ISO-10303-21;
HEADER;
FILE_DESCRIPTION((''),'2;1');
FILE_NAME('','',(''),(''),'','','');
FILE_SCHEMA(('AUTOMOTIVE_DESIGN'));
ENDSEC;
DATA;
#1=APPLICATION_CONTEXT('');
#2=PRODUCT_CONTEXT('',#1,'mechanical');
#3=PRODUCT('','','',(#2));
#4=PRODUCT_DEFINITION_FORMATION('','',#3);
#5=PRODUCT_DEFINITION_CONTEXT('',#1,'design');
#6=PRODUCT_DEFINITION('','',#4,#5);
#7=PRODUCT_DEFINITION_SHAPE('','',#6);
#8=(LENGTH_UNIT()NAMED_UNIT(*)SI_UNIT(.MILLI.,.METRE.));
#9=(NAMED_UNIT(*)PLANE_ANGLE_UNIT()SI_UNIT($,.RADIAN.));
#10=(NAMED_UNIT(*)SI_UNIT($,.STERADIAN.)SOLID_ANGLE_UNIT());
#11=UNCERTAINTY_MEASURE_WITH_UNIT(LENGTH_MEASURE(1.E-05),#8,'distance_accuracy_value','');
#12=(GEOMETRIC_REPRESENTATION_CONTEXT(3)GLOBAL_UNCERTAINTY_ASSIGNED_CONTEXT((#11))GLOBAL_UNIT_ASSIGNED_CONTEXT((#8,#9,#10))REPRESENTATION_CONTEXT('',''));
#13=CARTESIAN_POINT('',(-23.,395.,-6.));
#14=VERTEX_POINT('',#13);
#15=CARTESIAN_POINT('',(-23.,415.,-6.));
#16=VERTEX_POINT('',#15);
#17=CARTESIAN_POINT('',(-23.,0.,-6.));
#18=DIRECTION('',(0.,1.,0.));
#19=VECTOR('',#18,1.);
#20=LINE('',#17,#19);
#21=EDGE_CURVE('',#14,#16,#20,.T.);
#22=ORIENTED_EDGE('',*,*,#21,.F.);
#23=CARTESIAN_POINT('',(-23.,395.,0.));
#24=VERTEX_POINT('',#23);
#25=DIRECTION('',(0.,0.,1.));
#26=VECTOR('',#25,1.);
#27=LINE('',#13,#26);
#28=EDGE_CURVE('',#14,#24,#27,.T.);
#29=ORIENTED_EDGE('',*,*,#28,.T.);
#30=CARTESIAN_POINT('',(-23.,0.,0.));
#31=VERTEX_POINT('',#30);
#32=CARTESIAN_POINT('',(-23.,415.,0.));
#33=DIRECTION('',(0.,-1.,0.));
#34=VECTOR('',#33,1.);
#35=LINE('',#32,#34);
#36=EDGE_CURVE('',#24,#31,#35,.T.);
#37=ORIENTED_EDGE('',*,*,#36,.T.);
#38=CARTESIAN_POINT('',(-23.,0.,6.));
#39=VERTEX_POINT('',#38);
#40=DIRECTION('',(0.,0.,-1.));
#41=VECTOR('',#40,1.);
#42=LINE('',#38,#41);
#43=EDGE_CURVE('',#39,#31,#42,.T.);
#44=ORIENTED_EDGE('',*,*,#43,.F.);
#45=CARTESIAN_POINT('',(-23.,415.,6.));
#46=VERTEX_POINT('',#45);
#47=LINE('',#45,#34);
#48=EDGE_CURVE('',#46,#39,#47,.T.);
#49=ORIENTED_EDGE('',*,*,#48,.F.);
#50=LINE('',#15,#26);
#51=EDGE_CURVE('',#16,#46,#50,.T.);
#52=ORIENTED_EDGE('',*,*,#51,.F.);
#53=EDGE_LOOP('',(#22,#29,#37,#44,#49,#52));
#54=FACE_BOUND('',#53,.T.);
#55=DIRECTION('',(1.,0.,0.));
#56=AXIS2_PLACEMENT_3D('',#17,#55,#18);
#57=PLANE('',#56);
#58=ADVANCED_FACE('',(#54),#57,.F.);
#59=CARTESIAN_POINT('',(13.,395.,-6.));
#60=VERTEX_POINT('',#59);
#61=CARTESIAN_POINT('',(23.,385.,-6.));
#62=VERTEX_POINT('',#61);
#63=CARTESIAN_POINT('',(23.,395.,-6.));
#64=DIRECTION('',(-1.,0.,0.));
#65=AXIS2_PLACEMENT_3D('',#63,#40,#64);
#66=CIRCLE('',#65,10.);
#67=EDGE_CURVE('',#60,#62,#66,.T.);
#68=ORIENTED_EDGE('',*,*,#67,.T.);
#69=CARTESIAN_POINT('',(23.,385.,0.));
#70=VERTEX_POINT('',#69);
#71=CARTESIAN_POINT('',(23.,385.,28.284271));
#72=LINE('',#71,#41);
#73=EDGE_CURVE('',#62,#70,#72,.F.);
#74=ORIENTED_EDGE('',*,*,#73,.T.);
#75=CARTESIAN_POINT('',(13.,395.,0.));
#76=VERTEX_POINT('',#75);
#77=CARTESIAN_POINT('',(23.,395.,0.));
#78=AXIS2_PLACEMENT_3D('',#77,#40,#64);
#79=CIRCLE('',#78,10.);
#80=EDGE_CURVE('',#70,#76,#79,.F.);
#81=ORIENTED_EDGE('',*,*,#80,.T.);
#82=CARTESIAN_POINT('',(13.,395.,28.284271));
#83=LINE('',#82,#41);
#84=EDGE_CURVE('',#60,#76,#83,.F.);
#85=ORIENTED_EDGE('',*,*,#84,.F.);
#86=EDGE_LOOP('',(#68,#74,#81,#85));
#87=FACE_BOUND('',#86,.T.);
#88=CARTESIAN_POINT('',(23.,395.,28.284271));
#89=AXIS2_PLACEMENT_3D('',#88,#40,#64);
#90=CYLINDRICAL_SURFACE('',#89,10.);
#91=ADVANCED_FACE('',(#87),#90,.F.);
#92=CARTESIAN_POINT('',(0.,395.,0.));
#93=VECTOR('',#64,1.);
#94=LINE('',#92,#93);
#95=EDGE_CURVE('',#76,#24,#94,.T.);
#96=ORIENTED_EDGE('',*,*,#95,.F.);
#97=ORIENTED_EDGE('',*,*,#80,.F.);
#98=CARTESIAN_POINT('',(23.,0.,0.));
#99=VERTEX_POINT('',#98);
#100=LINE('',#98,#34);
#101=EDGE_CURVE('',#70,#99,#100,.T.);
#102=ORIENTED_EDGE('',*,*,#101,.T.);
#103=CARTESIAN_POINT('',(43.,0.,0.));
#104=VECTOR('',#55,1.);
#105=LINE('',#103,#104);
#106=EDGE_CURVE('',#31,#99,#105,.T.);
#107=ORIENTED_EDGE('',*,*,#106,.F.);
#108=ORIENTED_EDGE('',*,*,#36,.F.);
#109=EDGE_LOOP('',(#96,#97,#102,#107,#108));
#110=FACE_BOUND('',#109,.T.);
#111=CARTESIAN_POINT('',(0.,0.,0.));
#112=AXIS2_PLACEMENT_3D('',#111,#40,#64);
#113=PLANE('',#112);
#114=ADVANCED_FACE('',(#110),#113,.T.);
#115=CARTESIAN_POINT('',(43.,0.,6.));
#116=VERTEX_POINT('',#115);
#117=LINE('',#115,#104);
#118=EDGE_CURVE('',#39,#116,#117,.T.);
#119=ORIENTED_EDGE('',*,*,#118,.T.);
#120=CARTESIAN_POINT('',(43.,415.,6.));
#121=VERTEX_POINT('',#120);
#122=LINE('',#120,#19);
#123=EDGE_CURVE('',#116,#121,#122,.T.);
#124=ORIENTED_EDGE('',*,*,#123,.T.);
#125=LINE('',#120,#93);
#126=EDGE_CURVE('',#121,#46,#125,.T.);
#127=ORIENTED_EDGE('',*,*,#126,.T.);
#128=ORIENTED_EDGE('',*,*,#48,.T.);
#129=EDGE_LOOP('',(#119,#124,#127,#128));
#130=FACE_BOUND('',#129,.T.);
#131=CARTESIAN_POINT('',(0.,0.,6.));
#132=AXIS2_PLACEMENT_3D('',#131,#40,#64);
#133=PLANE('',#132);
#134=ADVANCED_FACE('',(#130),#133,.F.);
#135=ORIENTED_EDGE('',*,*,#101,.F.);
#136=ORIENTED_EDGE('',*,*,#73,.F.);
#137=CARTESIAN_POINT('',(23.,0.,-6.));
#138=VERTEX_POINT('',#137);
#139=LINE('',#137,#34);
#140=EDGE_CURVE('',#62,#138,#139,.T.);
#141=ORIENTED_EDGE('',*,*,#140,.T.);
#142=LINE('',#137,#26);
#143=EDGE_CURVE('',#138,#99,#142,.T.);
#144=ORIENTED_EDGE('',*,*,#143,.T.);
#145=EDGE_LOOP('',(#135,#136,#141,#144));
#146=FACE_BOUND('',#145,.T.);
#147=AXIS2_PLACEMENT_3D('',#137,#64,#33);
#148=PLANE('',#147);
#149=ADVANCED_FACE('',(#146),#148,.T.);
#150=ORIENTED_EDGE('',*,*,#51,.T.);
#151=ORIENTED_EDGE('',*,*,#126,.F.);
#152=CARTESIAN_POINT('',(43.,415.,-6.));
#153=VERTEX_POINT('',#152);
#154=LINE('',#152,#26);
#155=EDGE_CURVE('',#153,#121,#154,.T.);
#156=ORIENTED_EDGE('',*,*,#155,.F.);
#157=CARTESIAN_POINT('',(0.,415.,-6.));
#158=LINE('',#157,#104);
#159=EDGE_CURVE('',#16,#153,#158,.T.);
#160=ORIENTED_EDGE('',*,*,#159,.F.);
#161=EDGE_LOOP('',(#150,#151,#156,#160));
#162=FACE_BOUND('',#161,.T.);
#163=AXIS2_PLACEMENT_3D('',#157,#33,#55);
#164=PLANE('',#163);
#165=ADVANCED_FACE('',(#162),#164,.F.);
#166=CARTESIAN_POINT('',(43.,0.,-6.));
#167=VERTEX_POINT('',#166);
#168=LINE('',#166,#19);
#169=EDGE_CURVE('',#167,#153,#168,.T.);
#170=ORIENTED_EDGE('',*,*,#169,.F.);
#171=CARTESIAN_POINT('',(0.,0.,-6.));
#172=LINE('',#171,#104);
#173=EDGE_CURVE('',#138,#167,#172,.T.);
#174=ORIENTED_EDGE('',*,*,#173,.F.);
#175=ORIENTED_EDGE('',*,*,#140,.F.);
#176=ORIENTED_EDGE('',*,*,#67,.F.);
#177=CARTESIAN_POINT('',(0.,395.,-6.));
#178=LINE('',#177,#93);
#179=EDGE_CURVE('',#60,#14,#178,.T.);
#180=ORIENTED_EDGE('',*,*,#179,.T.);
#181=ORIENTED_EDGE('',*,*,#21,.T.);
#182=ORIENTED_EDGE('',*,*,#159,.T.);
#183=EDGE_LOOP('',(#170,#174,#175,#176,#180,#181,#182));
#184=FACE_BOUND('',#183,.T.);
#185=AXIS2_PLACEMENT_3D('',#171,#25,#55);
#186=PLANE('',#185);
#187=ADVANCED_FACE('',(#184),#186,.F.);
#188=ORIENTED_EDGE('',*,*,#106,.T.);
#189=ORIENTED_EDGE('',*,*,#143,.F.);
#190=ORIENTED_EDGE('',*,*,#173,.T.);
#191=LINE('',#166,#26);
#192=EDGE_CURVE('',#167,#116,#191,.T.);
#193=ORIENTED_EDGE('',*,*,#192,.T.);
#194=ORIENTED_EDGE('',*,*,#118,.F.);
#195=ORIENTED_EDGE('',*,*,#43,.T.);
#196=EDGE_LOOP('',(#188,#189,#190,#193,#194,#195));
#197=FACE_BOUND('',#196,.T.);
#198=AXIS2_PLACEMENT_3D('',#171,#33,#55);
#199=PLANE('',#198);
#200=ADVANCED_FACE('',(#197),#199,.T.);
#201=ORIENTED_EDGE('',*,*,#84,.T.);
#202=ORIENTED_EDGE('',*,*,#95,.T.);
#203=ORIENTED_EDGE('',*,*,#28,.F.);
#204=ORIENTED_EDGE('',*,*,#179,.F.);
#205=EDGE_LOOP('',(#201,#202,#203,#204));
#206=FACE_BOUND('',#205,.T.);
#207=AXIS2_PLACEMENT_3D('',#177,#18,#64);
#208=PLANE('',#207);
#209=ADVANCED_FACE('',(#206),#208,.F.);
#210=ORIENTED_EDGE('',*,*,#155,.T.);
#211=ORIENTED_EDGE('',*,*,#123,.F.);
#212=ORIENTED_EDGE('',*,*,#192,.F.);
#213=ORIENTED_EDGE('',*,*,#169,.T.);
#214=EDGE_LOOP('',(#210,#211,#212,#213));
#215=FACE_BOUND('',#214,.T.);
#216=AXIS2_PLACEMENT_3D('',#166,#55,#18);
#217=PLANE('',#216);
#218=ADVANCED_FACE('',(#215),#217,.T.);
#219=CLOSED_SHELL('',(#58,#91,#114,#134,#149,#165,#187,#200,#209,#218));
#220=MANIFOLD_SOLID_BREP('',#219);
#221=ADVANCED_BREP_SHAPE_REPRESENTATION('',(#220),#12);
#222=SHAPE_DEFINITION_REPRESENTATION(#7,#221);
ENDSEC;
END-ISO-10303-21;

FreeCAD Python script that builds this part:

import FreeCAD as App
import Part
import Sketcher

V = App.Vector


def add_polygon(sketch, points):
    """Adds a closed chain of lines whose ends are joined by coincident constraints."""
    first, n = sketch.GeometryCount, len(points)
    for a, b in zip(points, points[1:] + points[:1]):
        sketch.addGeometry(Part.LineSegment(App.Vector(*a, 0), App.Vector(*b, 0)), False)
    for i in range(n):
        sketch.addConstraint(Sketcher.Constraint("Coincident", first + i, 2, first + (i + 1) % n, 1))

doc = App.newDocument("Part")
body = doc.addObject("PartDesign::Body", "Body")

# Sketch on XY plane
sketch1 = body.newObject("Sketcher::SketchObject", "Sketch")
sketch1.AttachmentSupport = (doc.getObject("XY_Plane"), [""])
sketch1.MapMode = "FlatFace"
add_polygon(sketch1, [(23, 395), (23, 0), (43, 0), (43, 415), (-23, 415), (-23, 395)])  # lines 0-5
sketch1.addConstraint([
    Sketcher.Constraint("Vertical", 0),
    Sketcher.Constraint("Horizontal", 1),
    Sketcher.Constraint("Vertical", 2),
    Sketcher.Constraint("Horizontal", 3),
    Sketcher.Constraint("Vertical", 4),
    Sketcher.Constraint("Horizontal", 5),
    Sketcher.Constraint("PointOnObject", 0, 2, -1),
    Sketcher.Constraint("Equal", 1, 4),
    Sketcher.Constraint("DistanceX", 1, 1, 1, 2, 20.0),
    Sketcher.Constraint("DistanceX", 3, 2, 3, 1, 66.0),
    Sketcher.Constraint("DistanceY", 0, 2, 0, 1, 395.0),
    Sketcher.Constraint("DistanceX", -1, 1, 0, 2, 23.0),
])
pad1 = body.newObject("PartDesign::Pad", "Pad")
pad1.Profile = sketch1
pad1.Length = 6
pad1.Reversed = True

# Sketch on XY plane
sketch2 = body.newObject("Sketcher::SketchObject", "Sketch001")
sketch2.AttachmentSupport = (doc.getObject("XY_Plane"), [""])
sketch2.MapMode = "FlatFace"
add_polygon(sketch2, [(-23, 415), (-23, 0), (43, 0), (43, 415)])  # lines 0-3
sketch2.addConstraint([
    Sketcher.Constraint("Vertical", 0),
    Sketcher.Constraint("Horizontal", 1),
    Sketcher.Constraint("Vertical", 2),
    Sketcher.Constraint("Horizontal", 3),
    Sketcher.Constraint("PointOnObject", 0, 2, -1),
    Sketcher.Constraint("DistanceX", 1, 1, 1, 2, 66.0),
    Sketcher.Constraint("DistanceY", 0, 2, 0, 1, 415.0),
    Sketcher.Constraint("DistanceX", 0, 2, -1, 1, 23.0),
])
pad2 = body.newObject("PartDesign::Pad", "Pad001")
pad2.Profile = sketch2
pad2.Length = 6

# Sketch on XY plane
sketch3 = body.newObject("Sketcher::SketchObject", "Sketch002")
sketch3.AttachmentSupport = (doc.getObject("XY_Plane"), [""])
sketch3.MapMode = "FlatFace"
sketch3.AttachmentOffset = App.Placement(V(0, 0, -6), App.Rotation())
sketch3.addGeometry(Part.Circle(V(23, 395, 0), V(0, 0, 1), 10), False)
sketch3.addConstraint([
    Sketcher.Constraint("Diameter", 0, 20.0),
    Sketcher.Constraint("DistanceX", -1, 1, 0, 3, 23.0),
    Sketcher.Constraint("DistanceY", -1, 1, 0, 3, 395.0),
])
pocket1 = body.newObject("PartDesign::Pocket", "Pocket")
pocket1.Profile = sketch3
pocket1.Length = 6
pocket1.Reversed = True

doc.recompute()
